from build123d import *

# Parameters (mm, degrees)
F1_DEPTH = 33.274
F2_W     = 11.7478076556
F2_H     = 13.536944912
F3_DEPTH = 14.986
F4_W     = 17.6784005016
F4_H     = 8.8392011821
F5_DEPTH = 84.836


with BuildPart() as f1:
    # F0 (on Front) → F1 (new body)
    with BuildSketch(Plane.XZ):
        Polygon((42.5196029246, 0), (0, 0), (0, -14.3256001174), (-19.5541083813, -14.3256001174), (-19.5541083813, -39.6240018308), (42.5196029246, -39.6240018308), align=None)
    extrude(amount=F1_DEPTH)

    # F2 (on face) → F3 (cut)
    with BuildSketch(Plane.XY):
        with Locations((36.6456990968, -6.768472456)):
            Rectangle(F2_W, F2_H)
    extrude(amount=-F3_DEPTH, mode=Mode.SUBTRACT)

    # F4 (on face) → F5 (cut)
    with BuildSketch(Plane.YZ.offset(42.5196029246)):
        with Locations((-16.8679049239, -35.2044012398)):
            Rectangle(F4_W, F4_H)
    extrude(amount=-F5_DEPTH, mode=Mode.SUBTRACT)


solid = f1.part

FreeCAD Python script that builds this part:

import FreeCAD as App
import Part
import Sketcher
Q = App.Units.Quantity


def add_polygon(sketch, points):
    """Adds a closed chain of lines whose ends are joined by coincident constraints."""
    first, n = sketch.GeometryCount, len(points)
    for a, b in zip(points, points[1:] + points[:1]):
        sketch.addGeometry(Part.LineSegment(App.Vector(*a, 0), App.Vector(*b, 0)), False)
    for i in range(n):
        sketch.addConstraint(Sketcher.Constraint("Coincident", first + i, 2, first + (i + 1) % n, 1))

doc = App.newDocument("Part")
body = doc.addObject("PartDesign::Body", "Body")

sketch1 = body.newObject("Sketcher::SketchObject", "Sketch")
sketch1.AttachmentSupport = (doc.getObject("XZ_Plane"), [""])
sketch1.MapMode = "FlatFace"
add_polygon(sketch1, [(42.519603, 0), (0, 0), (0, -14.3256), (-19.554108, -14.3256), (-19.554108, -39.624002), (42.519603, -39.624002)])
sketch1.addConstraint(Sketcher.Constraint("Horizontal", 0))
sketch1.addConstraint(Sketcher.Constraint("Vertical", 1))
sketch1.addConstraint(Sketcher.Constraint("Horizontal", 2))
sketch1.addConstraint(Sketcher.Constraint("Vertical", 3))
sketch1.addConstraint(Sketcher.Constraint("Horizontal", 4))
sketch1.addConstraint(Sketcher.Constraint("Vertical", 5))
sketch1.addConstraint(Sketcher.Constraint("Coincident", 0, 2, -1, 1))
sketch1.addConstraint(Sketcher.Constraint("DistanceY", 5, 1, 5, 2, Q("1.5600001 in")))
sketch1.addConstraint(Sketcher.Constraint("DistanceX", 0, 2, 0, 1, Q("1.6740001 in")))
sketch1.addConstraint(Sketcher.Constraint("DistanceY", 1, 2, 1, 1, Q("0.564 in")))
sketch1.addConstraint(Sketcher.Constraint("DistanceX", 2, 2, 2, 1, Q("19.554108 mm")))
pad1 = body.newObject("PartDesign::Pad", "Pad")
pad1.Profile = sketch1
pad1.Length = Q("1.31 in")

sketch2 = body.newObject("Sketcher::SketchObject", "Sketch001")
sketch2.AttachmentSupport = (doc.getObject("XY_Plane"), [""])
sketch2.MapMode = "FlatFace"
add_polygon(sketch2, [(30.771795, 0), (30.771795, -13.536945), (42.519603, -13.536945), (42.519603, 0)])
sketch2.addConstraint(Sketcher.Constraint("Vertical", 0))
sketch2.addConstraint(Sketcher.Constraint("Horizontal", 1))
sketch2.addConstraint(Sketcher.Constraint("Vertical", 2))
sketch2.addConstraint(Sketcher.Constraint("Horizontal", 3))
sketch2.addConstraint(Sketcher.Constraint("PointOnObject", 2, 2, -1))
sketch2.addConstraint(Sketcher.Constraint("DistanceX", -1, 1, 1, 2, Q("1.6740001 in")))
sketch2.addConstraint(Sketcher.Constraint("DistanceX", 1, 1, 1, 2, Q("11.747808 mm")))
sketch2.addConstraint(Sketcher.Constraint("DistanceY", 0, 2, 0, 1, Q("13.536945 mm")))
pocket1 = body.newObject("PartDesign::Pocket", "Pocket")
pocket1.Profile = sketch2
pocket1.Length = Q("0.59 in")

sketch3 = body.newObject("Sketcher::SketchObject", "Sketch002")
sketch3.AttachmentSupport = (doc.getObject("YZ_Plane"), [""])
sketch3.MapMode = "FlatFace"
sketch3.AttachmentOffset = App.Placement(App.Vector(0, 0, 1.6740001 * 25.4), App.Rotation())
add_polygon(sketch3, [(-25.707105, -30.784801), (-25.707105, -39.624002), (-8.028705, -39.624002), (-8.028705, -30.784801)])
sketch3.addConstraint(Sketcher.Constraint("Vertical", 0))
sketch3.addConstraint(Sketcher.Constraint("Horizontal", 1))
sketch3.addConstraint(Sketcher.Constraint("Vertical", 2))
sketch3.addConstraint(Sketcher.Constraint("Horizontal", 3))
sketch3.addConstraint(Sketcher.Constraint("DistanceX", 1, 1, 1, 2, Q("0.696 in")))
sketch3.addConstraint(Sketcher.Constraint("DistanceY", 0, 2, 0, 1, Q("0.348 in")))
sketch3.addConstraint(Sketcher.Constraint("DistanceY", 0, 2, -1, 1, Q("1.5600001 in")))
sketch3.addConstraint(Sketcher.Constraint("DistanceX", 0, 2, -1, 1, Q("25.707105 mm")))
pocket2 = body.newObject("PartDesign::Pocket", "Pocket001")
pocket2.Profile = sketch3
pocket2.Length = Q("3.34 in")

doc.recompute()
